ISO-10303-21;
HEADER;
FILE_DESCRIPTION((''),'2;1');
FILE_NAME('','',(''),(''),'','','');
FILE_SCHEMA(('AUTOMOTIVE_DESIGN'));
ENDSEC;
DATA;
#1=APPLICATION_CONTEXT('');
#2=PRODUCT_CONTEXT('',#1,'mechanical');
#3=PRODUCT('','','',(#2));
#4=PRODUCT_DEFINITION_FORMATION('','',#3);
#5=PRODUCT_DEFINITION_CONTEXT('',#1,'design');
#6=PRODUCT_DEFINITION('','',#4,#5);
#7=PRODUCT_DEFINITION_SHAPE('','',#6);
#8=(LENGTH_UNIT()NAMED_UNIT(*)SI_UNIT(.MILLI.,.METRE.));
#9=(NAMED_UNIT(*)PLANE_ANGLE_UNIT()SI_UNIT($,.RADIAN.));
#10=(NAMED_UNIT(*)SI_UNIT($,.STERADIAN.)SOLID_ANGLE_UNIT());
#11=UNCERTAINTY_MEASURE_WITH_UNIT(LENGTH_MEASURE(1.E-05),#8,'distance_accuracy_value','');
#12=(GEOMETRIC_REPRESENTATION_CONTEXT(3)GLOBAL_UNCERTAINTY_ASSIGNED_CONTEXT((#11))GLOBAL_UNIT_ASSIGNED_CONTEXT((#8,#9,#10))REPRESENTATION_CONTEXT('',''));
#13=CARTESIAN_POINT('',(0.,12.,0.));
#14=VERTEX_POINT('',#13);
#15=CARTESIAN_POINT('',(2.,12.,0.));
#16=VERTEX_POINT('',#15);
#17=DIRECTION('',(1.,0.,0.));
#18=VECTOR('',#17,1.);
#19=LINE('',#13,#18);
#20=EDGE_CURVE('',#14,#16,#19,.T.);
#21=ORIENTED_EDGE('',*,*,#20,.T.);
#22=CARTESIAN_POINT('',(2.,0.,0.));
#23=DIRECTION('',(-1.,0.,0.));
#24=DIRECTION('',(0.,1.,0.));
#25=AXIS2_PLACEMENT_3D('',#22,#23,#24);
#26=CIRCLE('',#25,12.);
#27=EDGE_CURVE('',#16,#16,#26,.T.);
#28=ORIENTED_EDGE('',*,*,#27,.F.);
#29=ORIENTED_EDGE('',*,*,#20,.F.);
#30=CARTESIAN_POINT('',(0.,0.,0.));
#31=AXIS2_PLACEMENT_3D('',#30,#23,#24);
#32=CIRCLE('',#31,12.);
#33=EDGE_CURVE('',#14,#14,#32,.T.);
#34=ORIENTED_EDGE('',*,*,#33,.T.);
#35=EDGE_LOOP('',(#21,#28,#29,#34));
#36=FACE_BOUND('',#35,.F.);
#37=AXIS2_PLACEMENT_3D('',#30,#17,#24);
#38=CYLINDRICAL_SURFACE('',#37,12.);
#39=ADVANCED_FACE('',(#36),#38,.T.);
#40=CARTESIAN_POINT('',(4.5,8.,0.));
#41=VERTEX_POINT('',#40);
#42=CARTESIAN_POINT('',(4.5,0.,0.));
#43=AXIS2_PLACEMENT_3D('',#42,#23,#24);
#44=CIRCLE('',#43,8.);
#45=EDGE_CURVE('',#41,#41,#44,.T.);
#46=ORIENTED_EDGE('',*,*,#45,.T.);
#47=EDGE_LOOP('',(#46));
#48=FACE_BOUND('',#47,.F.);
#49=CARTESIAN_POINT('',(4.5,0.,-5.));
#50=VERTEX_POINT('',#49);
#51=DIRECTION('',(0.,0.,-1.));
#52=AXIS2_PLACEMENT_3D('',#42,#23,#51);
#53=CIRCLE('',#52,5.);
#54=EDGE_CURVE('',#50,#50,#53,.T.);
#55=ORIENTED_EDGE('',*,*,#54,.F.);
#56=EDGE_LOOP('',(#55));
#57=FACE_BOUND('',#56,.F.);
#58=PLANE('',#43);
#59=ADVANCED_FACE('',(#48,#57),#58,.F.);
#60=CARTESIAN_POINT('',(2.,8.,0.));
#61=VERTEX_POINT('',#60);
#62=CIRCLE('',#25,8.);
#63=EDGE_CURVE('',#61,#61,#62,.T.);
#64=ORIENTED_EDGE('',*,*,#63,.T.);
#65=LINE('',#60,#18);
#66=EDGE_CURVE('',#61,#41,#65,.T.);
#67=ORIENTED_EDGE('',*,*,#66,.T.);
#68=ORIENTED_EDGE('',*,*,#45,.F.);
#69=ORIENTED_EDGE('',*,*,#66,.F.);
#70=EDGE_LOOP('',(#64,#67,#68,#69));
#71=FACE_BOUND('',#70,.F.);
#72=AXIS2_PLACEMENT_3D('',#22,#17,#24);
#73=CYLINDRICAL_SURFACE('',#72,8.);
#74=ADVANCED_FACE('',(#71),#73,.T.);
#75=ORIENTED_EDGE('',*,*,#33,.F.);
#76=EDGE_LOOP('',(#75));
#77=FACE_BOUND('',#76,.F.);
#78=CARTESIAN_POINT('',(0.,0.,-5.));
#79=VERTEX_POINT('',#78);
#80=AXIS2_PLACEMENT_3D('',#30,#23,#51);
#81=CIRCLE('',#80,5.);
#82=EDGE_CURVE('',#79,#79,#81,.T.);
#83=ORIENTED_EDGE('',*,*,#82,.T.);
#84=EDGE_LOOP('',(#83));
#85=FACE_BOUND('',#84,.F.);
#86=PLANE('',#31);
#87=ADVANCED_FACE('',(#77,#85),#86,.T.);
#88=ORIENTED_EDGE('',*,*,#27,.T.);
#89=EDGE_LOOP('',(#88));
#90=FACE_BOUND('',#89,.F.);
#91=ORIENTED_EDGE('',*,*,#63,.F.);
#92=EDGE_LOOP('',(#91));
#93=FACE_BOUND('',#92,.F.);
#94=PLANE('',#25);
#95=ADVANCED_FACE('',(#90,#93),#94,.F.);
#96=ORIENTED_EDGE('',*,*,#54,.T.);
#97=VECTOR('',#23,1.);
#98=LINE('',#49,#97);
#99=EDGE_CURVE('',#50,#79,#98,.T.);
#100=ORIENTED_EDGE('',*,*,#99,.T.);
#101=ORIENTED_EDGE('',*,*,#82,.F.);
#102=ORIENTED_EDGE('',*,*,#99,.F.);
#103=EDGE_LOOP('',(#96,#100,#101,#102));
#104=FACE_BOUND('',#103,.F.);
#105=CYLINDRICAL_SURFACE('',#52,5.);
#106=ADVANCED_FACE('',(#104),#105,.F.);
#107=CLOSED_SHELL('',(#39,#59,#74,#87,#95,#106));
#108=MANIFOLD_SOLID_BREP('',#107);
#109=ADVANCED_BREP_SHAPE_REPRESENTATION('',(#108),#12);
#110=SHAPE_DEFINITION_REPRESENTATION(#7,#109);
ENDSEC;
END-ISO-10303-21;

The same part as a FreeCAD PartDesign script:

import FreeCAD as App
import Part
import Sketcher
from FreeCAD import Vector


def add_polygon(sketch, points):
    """Adds a closed chain of lines whose ends are joined by coincident constraints."""
    first, n = sketch.GeometryCount, len(points)
    for a, b in zip(points, points[1:] + points[:1]):
        sketch.addGeometry(Part.LineSegment(App.Vector(*a, 0), App.Vector(*b, 0)), False)
    for i in range(n):
        sketch.addConstraint(Sketcher.Constraint("Coincident", first + i, 2, first + (i + 1) % n, 1))

doc = App.newDocument("Part")
params = doc.addObject("Spreadsheet::Sheet", "Params")
for row, (alias, value) in enumerate([
    ("sketch1_width", "2 mm"),
    ("sketch1_width2", "2.5 mm"),
    ("sketch1_height", "12 mm"),
    ("sketch1_height2", "8 mm"),
    ("revolution_angle", "360 deg"),
    ("sketch2_diameter", "10 mm"),
    ("hole_diameter", "10 mm"),
    ("hole_depth", "4.5 mm"),
], start=1):
    params.set(f"A{row}", alias)
    params.set(f"B{row}", "=" + value)
    params.setAlias(f"B{row}", alias)

body = doc.addObject("PartDesign::Body", "Body")

# Sketch on XY plane
sketch1 = doc.addObject("Sketcher::SketchObject", "Sketch")
body.addObject(sketch1)
sketch1.AttachmentSupport = (doc.XY_Plane, [""])
sketch1.MapMode = "FlatFace"
add_polygon(sketch1, [(0, 12), (0, 0), (4.5, 0), (4.5, 8), (2, 8), (2, 12)])  # lines 0-5
sketch1.addConstraint([
    Sketcher.Constraint("Vertical", 0),
    Sketcher.Constraint("Horizontal", 1),
    Sketcher.Constraint("Vertical", 2),
    Sketcher.Constraint("Horizontal", 3),
    Sketcher.Constraint("Vertical", 4),
    Sketcher.Constraint("Horizontal", 5),
    Sketcher.Constraint("Coincident", 0, 2, -1, 1),
    Sketcher.Constraint("DistanceX", 5, 2, 5, 1, 2.0),
    Sketcher.Constraint("DistanceX", 3, 2, 3, 1, 2.5),
    Sketcher.Constraint("DistanceY", 0, 2, 0, 1, 12.0),
    Sketcher.Constraint("DistanceY", 2, 1, 2, 2, 8.0),
])
sketch1.setExpression("Constraints[13]", "Params.sketch1_width")
sketch1.setExpression("Constraints[14]", "Params.sketch1_width2")
sketch1.setExpression("Constraints[15]", "Params.sketch1_height")
sketch1.setExpression("Constraints[16]", "Params.sketch1_height2")
revolution = doc.addObject("PartDesign::Revolution", "Revolution")
body.addObject(revolution)
revolution.Profile = sketch1
revolution.ReferenceAxis = (sketch1, ["H_Axis"])
revolution.setExpression("Angle", "Params.revolution_angle")

# Sketch on YZ plane
sketch2 = doc.addObject("Sketcher::SketchObject", "Sketch001")
body.addObject(sketch2)
sketch2.AttachmentSupport = (doc.YZ_Plane, [""])
sketch2.MapMode = "FlatFace"
sketch2.AttachmentOffset = App.Placement(Vector(0, 0, 4.5), App.Rotation())
sketch2.addGeometry(Part.Circle(Vector(0, 0, 0), Vector(0, 0, 1), 5), False)
sketch2.addConstraint([
    Sketcher.Constraint("Coincident", 0, 3, -1, 1),
    Sketcher.Constraint("Diameter", 0, 10.0),
])
sketch2.setExpression("Constraints[1]", "Params.sketch2_diameter")
doc.recompute()
hole = doc.addObject("PartDesign::Hole", "Hole")
body.addObject(hole)
hole.Profile = sketch2
hole.ThreadType = "None"
hole.setExpression("Diameter", "Params.hole_diameter")
hole.DepthType = "Dimension"
hole.setExpression("Depth", "Params.hole_depth")
hole.DrillPoint = "Flat"

doc.recompute()
